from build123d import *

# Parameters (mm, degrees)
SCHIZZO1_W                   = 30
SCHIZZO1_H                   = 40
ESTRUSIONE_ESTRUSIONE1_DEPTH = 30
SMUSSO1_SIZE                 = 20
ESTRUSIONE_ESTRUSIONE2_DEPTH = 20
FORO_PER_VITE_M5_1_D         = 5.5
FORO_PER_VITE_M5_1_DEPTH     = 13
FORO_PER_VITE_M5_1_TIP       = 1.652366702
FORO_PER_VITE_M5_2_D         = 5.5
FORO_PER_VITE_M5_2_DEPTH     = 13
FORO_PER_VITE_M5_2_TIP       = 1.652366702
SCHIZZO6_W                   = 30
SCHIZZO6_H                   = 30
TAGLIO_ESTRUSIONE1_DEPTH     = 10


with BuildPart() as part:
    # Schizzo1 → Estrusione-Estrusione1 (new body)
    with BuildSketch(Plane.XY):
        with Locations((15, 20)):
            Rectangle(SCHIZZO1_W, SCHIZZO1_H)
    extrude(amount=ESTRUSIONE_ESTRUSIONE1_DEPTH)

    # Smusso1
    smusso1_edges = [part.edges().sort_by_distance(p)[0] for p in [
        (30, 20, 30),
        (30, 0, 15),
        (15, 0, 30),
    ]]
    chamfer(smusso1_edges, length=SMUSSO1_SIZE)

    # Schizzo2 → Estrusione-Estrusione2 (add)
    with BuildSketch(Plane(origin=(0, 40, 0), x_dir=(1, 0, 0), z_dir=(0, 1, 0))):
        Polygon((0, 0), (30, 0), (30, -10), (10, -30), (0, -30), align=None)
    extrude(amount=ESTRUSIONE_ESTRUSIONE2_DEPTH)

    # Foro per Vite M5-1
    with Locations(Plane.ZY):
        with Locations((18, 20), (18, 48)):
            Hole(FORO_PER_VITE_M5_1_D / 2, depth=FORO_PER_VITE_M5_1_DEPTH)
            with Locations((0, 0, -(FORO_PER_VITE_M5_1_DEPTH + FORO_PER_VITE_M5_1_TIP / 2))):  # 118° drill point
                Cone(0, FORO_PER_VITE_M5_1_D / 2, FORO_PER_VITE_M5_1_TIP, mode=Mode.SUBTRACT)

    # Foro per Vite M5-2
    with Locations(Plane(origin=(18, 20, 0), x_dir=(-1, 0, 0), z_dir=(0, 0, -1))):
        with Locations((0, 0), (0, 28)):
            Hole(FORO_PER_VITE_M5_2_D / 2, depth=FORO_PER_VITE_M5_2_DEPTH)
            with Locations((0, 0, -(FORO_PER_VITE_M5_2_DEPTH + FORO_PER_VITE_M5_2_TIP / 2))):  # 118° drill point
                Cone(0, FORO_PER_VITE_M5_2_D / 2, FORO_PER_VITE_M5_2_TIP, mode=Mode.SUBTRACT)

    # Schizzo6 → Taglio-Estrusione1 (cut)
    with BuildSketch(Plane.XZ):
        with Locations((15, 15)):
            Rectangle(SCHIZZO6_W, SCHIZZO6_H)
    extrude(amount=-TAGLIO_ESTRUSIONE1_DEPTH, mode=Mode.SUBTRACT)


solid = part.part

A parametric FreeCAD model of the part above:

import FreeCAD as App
import Part
import Sketcher
from FreeCAD import Vector


def edges_at(feature, points):
    """Names of the edges that pass closest to the given points."""
    edges = feature.Shape.Edges
    near = lambda p: min(range(len(edges)), key=lambda i: edges[i].distToShape(Part.Vertex(*p))[0])
    return sorted({f"Edge{near(p) + 1}" for p in points})


def add_polygon(sketch, points):
    """Adds a closed chain of lines whose ends are joined by coincident constraints."""
    first, n = sketch.GeometryCount, len(points)
    for a, b in zip(points, points[1:] + points[:1]):
        sketch.addGeometry(Part.LineSegment(App.Vector(*a, 0), App.Vector(*b, 0)), False)
    for i in range(n):
        sketch.addConstraint(Sketcher.Constraint("Coincident", first + i, 2, first + (i + 1) % n, 1))

doc = App.newDocument("Part")
body = doc.addObject("PartDesign::Body", "Body")

# Sketch on XY plane
sketch1 = doc.addObject("Sketcher::SketchObject", "Sketch")
body.addObject(sketch1)
sketch1.AttachmentSupport = (doc.XY_Plane, [""])
sketch1.MapMode = "FlatFace"
add_polygon(sketch1, [(0, 40), (0, 0), (30, 0), (30, 40)])  # lines 0-3
sketch1.addConstraint([
    Sketcher.Constraint("Vertical", 0),
    Sketcher.Constraint("Horizontal", 1),
    Sketcher.Constraint("Vertical", 2),
    Sketcher.Constraint("Horizontal", 3),
    Sketcher.Constraint("Coincident", 0, 2, -1, 1),
    Sketcher.Constraint("DistanceX", 1, 1, 1, 2, 30.0),
    Sketcher.Constraint("DistanceY", 0, 2, 0, 1, 40.0),
])
pad1 = doc.addObject("PartDesign::Pad", "Pad")
body.addObject(pad1)
pad1.Profile = sketch1
pad1.Length = 30
doc.recompute()

chamfer = doc.addObject("PartDesign::Chamfer", "Chamfer")
body.addObject(chamfer)
chamfer.Base = (pad1, edges_at(pad1, [(30, 20, 30), (30, 0, 15), (15, 0, 30)]))
chamfer.Size = 20

# Sketch on XZ plane
sketch2 = doc.addObject("Sketcher::SketchObject", "Sketch001")
body.addObject(sketch2)
sketch2.AttachmentSupport = (doc.XZ_Plane, [""])
sketch2.MapMode = "FlatFace"
sketch2.AttachmentOffset = App.Placement(Vector(0, 0, -40), App.Rotation())
add_polygon(sketch2, [(30, 0), (0, 0), (0, 30), (10, 30), (30, 10)])  # lines 0-4
sketch2.addConstraint([
    Sketcher.Constraint("Horizontal", 0),
    Sketcher.Constraint("Vertical", 1),
    Sketcher.Constraint("Horizontal", 2),
    Sketcher.Constraint("Vertical", 4),
    Sketcher.Constraint("Coincident", 0, 2, -1, 1),
    Sketcher.Constraint("Equal", 0, 1),
    Sketcher.Constraint("Equal", 2, 4),
    Sketcher.Constraint("DistanceX", 0, 2, 0, 1, 30.0),
    Sketcher.Constraint("DistanceX", 2, 1, 2, 2, 10.0),
])
pad2 = doc.addObject("PartDesign::Pad", "Pad001")
body.addObject(pad2)
pad2.Profile = sketch2
pad2.Length = 20
pad2.Reversed = True

# Sketch on YZ plane
sketch3 = doc.addObject("Sketcher::SketchObject", "Sketch002")
body.addObject(sketch3)
sketch3.AttachmentSupport = (doc.YZ_Plane, [""])
sketch3.MapMode = "FlatFace"
sketch3.addGeometry([
    Part.Circle(Vector(20, 18, 0), Vector(0, 0, 1), 2.75),
    Part.Circle(Vector(48, 18, 0), Vector(0, 0, 1), 2.75),
], False)
sketch3.addConstraint([
    Sketcher.Constraint("Equal", 0, 1),
    Sketcher.Constraint("Horizontal", 0, 3, 1, 3),
    Sketcher.Constraint("Diameter", 0, 5.5),
    Sketcher.Constraint("DistanceX", -1, 1, 0, 3, 20.0),
    Sketcher.Constraint("DistanceY", -1, 1, 0, 3, 18.0),
    Sketcher.Constraint("DistanceX", -1, 1, 1, 3, 48.0),
])
doc.recompute()
hole = doc.addObject("PartDesign::Hole", "Hole")
body.addObject(hole)
hole.Profile = sketch3
hole.ThreadType = "None"
hole.Diameter = 5.5
hole.DepthType = "Dimension"
hole.Depth = 13
hole.DrillPoint = "Angled"
hole.DrillPointAngle = 118
hole.Reversed = True

# Sketch on XY plane
sketch4 = doc.addObject("Sketcher::SketchObject", "Sketch003")
body.addObject(sketch4)
sketch4.AttachmentSupport = (doc.XY_Plane, [""])
sketch4.MapMode = "FlatFace"
sketch4.addGeometry([
    Part.Circle(Vector(18, 20, 0), Vector(0, 0, 1), 2.75),
    Part.Circle(Vector(18, 48, 0), Vector(0, 0, 1), 2.75),
], False)
sketch4.addConstraint([
    Sketcher.Constraint("Equal", 0, 1),
    Sketcher.Constraint("Vertical", 0, 3, 1, 3),
    Sketcher.Constraint("Diameter", 0, 5.5),
    Sketcher.Constraint("DistanceX", -1, 1, 0, 3, 18.0),
    Sketcher.Constraint("DistanceY", -1, 1, 0, 3, 20.0),
    Sketcher.Constraint("DistanceY", -1, 1, 1, 3, 48.0),
])
doc.recompute()
hole2 = doc.addObject("PartDesign::Hole", "Hole001")
body.addObject(hole2)
hole2.Profile = sketch4
hole2.ThreadType = "None"
hole2.Diameter = 5.5
hole2.DepthType = "Dimension"
hole2.Depth = 13
hole2.DrillPoint = "Angled"
hole2.DrillPointAngle = 118
hole2.Reversed = True

# Sketch on XZ plane
sketch5 = doc.addObject("Sketcher::SketchObject", "Sketch004")
body.addObject(sketch5)
sketch5.AttachmentSupport = (doc.XZ_Plane, [""])
sketch5.MapMode = "FlatFace"
add_polygon(sketch5, [(0, 30), (0, 0), (30, 0), (30, 30)])  # lines 0-3
sketch5.addConstraint([
    Sketcher.Constraint("Vertical", 0),
    Sketcher.Constraint("Horizontal", 1),
    Sketcher.Constraint("Vertical", 2),
    Sketcher.Constraint("Horizontal", 3),
    Sketcher.Constraint("Coincident", 0, 2, -1, 1),
    Sketcher.Constraint("Equal", 3, 0),
    Sketcher.Constraint("DistanceX", 1, 1, 1, 2, 30.0),
])
pocket1 = doc.addObject("PartDesign::Pocket", "Pocket")
body.addObject(pocket1)
pocket1.Profile = sketch5
pocket1.Length = 10

doc.recompute()
